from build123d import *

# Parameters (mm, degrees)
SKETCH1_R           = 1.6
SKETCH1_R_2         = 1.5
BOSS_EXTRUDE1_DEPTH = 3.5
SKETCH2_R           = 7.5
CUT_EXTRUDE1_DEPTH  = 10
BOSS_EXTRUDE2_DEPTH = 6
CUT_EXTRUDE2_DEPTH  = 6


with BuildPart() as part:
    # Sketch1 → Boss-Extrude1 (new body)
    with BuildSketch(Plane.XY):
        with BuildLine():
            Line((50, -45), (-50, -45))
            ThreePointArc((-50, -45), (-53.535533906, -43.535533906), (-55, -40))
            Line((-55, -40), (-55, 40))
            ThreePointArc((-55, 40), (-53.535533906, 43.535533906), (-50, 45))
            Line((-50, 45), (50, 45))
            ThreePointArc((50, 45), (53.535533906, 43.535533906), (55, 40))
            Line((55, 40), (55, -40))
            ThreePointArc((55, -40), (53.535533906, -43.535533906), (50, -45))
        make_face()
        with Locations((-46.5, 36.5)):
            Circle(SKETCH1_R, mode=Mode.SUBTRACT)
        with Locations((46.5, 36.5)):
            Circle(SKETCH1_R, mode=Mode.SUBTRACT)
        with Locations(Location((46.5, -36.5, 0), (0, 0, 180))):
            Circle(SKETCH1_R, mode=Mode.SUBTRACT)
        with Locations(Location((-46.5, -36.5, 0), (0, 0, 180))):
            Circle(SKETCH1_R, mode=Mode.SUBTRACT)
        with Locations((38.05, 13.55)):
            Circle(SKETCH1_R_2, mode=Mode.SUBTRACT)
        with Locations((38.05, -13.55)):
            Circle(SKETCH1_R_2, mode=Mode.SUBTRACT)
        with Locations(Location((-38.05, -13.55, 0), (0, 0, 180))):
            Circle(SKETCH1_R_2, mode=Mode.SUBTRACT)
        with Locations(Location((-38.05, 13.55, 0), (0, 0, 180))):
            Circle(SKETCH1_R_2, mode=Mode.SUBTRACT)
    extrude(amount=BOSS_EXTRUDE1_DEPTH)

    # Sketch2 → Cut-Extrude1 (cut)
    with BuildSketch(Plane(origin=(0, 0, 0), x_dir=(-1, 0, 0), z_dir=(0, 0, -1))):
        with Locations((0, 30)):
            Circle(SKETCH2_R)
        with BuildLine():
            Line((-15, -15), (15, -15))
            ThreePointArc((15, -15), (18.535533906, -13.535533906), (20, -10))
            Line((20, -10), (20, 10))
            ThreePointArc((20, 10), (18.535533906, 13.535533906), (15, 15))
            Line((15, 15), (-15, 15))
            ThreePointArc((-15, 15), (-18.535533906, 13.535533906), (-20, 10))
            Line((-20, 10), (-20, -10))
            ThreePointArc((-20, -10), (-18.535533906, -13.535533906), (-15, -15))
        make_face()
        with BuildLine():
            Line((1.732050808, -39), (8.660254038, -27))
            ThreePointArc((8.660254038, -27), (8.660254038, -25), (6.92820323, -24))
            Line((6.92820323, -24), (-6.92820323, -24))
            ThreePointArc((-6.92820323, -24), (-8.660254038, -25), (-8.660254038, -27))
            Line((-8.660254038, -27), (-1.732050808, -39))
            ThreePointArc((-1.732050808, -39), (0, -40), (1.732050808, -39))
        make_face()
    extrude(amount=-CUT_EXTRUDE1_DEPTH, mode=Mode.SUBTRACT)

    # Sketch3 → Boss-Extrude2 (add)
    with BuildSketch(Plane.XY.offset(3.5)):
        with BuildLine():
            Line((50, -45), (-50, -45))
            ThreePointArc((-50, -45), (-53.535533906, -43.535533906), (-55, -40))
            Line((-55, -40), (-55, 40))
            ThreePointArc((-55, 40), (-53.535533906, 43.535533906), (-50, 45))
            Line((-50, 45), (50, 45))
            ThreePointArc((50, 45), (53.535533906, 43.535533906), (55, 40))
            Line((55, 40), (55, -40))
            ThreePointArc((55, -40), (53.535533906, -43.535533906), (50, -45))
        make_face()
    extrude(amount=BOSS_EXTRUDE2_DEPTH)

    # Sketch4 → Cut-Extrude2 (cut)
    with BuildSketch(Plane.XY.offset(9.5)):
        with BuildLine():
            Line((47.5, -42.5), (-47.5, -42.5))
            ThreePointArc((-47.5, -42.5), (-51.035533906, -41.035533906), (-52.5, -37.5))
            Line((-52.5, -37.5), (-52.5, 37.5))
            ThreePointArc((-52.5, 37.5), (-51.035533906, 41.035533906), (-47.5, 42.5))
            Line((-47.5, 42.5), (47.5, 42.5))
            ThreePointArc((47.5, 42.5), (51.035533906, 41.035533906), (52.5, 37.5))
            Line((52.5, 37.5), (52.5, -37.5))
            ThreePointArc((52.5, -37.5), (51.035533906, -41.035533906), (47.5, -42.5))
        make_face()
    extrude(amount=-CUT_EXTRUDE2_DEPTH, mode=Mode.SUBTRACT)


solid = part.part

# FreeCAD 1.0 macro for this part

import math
import FreeCAD as App
import Part
import Sketcher
Q = App.Units.Quantity

doc = App.newDocument("Part")
body = doc.addObject("PartDesign::Body", "Body")

sketch1 = doc.addObject("Sketcher::SketchObject", "Sketch")
body.addObject(sketch1)
sketch1.AttachmentSupport = (doc.XY_Plane, [""])
sketch1.MapMode = "FlatFace"
sketch1.addGeometry(Part.LineSegment(App.Vector(-50, -45, 0), App.Vector(50, -45, 0)), False)
sketch1.addGeometry(Part.ArcOfCircle(Part.Circle(App.Vector(50, -40, 0), App.Vector(0, 0, 1), 5), math.radians(-90), math.radians(0)), False)
sketch1.addGeometry(Part.LineSegment(App.Vector(55, -40, 0), App.Vector(55, 40, 0)), False)
sketch1.addGeometry(Part.ArcOfCircle(Part.Circle(App.Vector(50, 40, 0), App.Vector(0, 0, 1), 5), math.radians(0), math.radians(90)), False)
sketch1.addGeometry(Part.LineSegment(App.Vector(50, 45, 0), App.Vector(-50, 45, 0)), False)
sketch1.addGeometry(Part.ArcOfCircle(Part.Circle(App.Vector(-50, 40, 0), App.Vector(0, 0, 1), 5), math.radians(90), math.radians(180)), False)
sketch1.addGeometry(Part.LineSegment(App.Vector(-55, 40, 0), App.Vector(-55, -40, 0)), False)
sketch1.addGeometry(Part.ArcOfCircle(Part.Circle(App.Vector(-50, -40, 0), App.Vector(0, 0, 1), 5), math.radians(180), math.radians(270)), False)
sketch1.addGeometry(Part.Circle(App.Vector(46.5, -36.5, 0), App.Vector(0, 0, 1), 1.6), False)
sketch1.addGeometry(Part.Circle(App.Vector(38, -13.6, 0), App.Vector(0, 0, 1), 1.5), False)
sketch1.addGeometry(Part.Circle(App.Vector(-46.5, -36.5, 0), App.Vector(0, 0, 1), 1.6), False)
sketch1.addGeometry(Part.Circle(App.Vector(-38, -13.6, 0), App.Vector(0, 0, 1), 1.5), False)
sketch1.addGeometry(Part.Circle(App.Vector(38, 13.6, 0), App.Vector(0, 0, 1), 1.5), False)
sketch1.addGeometry(Part.Circle(App.Vector(46.5, 36.5, 0), App.Vector(0, 0, 1), 1.6), False)
sketch1.addGeometry(Part.Circle(App.Vector(-38, 13.6, 0), App.Vector(0, 0, 1), 1.5), False)
sketch1.addGeometry(Part.Circle(App.Vector(-46.5, 36.5, 0), App.Vector(0, 0, 1), 1.6), False)
sketch1.addConstraint(Sketcher.Constraint("Tangent", 0, 2, 1, 1))
sketch1.addConstraint(Sketcher.Constraint("Tangent", 1, 2, 2, 1))
sketch1.addConstraint(Sketcher.Constraint("Tangent", 2, 2, 3, 1))
sketch1.addConstraint(Sketcher.Constraint("Tangent", 3, 2, 4, 1))
sketch1.addConstraint(Sketcher.Constraint("Tangent", 4, 2, 5, 1))
sketch1.addConstraint(Sketcher.Constraint("Tangent", 5, 2, 6, 1))
sketch1.addConstraint(Sketcher.Constraint("Tangent", 6, 2, 7, 1))
sketch1.addConstraint(Sketcher.Constraint("Tangent", 7, 2, 0, 1))
sketch1.addConstraint(Sketcher.Constraint("Horizontal", 0))
sketch1.addConstraint(Sketcher.Constraint("Vertical", 2))
sketch1.addConstraint(Sketcher.Constraint("Horizontal", 4))
sketch1.addConstraint(Sketcher.Constraint("Vertical", 6))
sketch1.addConstraint(Sketcher.Constraint("Equal", 1, 3))
sketch1.addConstraint(Sketcher.Constraint("Equal", 3, 5))
sketch1.addConstraint(Sketcher.Constraint("Equal", 5, 7))
sketch1.addConstraint(Sketcher.Constraint("Equal", 8, 10))
sketch1.addConstraint(Sketcher.Constraint("Equal", 9, 11))
sketch1.addConstraint(Sketcher.Constraint("Equal", 11, 12))
sketch1.addConstraint(Sketcher.Constraint("Equal", 10, 13))
sketch1.addConstraint(Sketcher.Constraint("Equal", 12, 14))
sketch1.addConstraint(Sketcher.Constraint("Equal", 13, 15))
sketch1.addConstraint(Sketcher.Constraint("Symmetric", 1, 3, 5, 3, -1, 1))
sketch1.addConstraint(Sketcher.Constraint("Symmetric", 11, 3, 12, 3, -1, 1))
sketch1.addConstraint(Sketcher.Constraint("Symmetric", 10, 3, 13, 3, -1, 1))
sketch1.addConstraint(Sketcher.Constraint("Symmetric", 9, 3, 14, 3, -1, 1))
sketch1.addConstraint(Sketcher.Constraint("Symmetric", 8, 3, 15, 3, -1, 1))
sketch1.addConstraint(Sketcher.Constraint("Symmetric", 8, 3, 10, 3, -2))
sketch1.addConstraint(Sketcher.Constraint("Symmetric", 9, 3, 11, 3, -2))
sketch1.addConstraint(Sketcher.Constraint("Diameter", 9, 3.0))
sketch1.addConstraint(Sketcher.Constraint("Radius", 1, 5.0))
sketch1.addConstraint(Sketcher.Constraint("Diameter", 8, 3.2))
sketch1.addConstraint(Sketcher.Constraint("DistanceX", 0, 1, 0, 2, 100.0))
sketch1.addConstraint(Sketcher.Constraint("DistanceY", 2, 1, 2, 2, 80.0))
sketch1.addConstraint(Sketcher.Constraint("DistanceX", 10, 3, 8, 3, 93.0))
sketch1.addConstraint(Sketcher.Constraint("DistanceY", 8, 3, 13, 3, 73.0))
sketch1.addConstraint(Sketcher.Constraint("DistanceX", 11, 3, 9, 3, 76.1))
sketch1.addConstraint(Sketcher.Constraint("DistanceY", 9, 3, 12, 3, 27.1))
pad1 = doc.addObject("PartDesign::Pad", "Pad")
body.addObject(pad1)
pad1.Profile = sketch1
pad1.Length = 3.5

sketch2 = doc.addObject("Sketcher::SketchObject", "Sketch001")
body.addObject(sketch2)
sketch2.AttachmentSupport = (doc.XY_Plane, [""])
sketch2.MapMode = "FlatFace"
sketch2.addGeometry(Part.Circle(App.Vector(0, 30, 0), App.Vector(0, 0, 1), 7.5), False)
sketch2.addGeometry(Part.LineSegment(App.Vector(15, -15, 0), App.Vector(-15, -15, 0)), False)
sketch2.addGeometry(Part.ArcOfCircle(Part.Circle(App.Vector(-15, -10, 0), App.Vector(0, 0, 1), 5), math.radians(180), math.radians(270)), False)
sketch2.addGeometry(Part.LineSegment(App.Vector(-20, -10, 0), App.Vector(-20, 10, 0)), False)
sketch2.addGeometry(Part.ArcOfCircle(Part.Circle(App.Vector(-15, 10, 0), App.Vector(0, 0, 1), 5), math.radians(90), math.radians(180)), False)
sketch2.addGeometry(Part.LineSegment(App.Vector(-15, 15, 0), App.Vector(15, 15, 0)), False)
sketch2.addGeometry(Part.ArcOfCircle(Part.Circle(App.Vector(15, 10, 0), App.Vector(0, 0, 1), 5), math.radians(0), math.radians(90)), False)
sketch2.addGeometry(Part.LineSegment(App.Vector(20, 10, 0), App.Vector(20, -10, 0)), False)
sketch2.addGeometry(Part.ArcOfCircle(Part.Circle(App.Vector(15, -10, 0), App.Vector(0, 0, 1), 5), math.radians(-90), math.radians(0)), False)
sketch2.addGeometry(Part.LineSegment(App.Vector(-1.7, -39, 0), App.Vector(-8.7, -27, 0)), False)
sketch2.addGeometry(Part.ArcOfCircle(Part.Circle(App.Vector(-6.9, -26, 0), App.Vector(0, 0, 1), 2), math.radians(90), math.radians(210)), False)
sketch2.addGeometry(Part.LineSegment(App.Vector(-6.9, -24, 0), App.Vector(6.9, -24, 0)), False)
sketch2.addGeometry(Part.ArcOfCircle(Part.Circle(App.Vector(6.9, -26, 0), App.Vector(0, 0, 1), 2), math.radians(-30), math.radians(90)), False)
sketch2.addGeometry(Part.LineSegment(App.Vector(8.7, -27, 0), App.Vector(1.7, -39, 0)), False)
sketch2.addGeometry(Part.ArcOfCircle(Part.Circle(App.Vector(0, -38, 0), App.Vector(0, 0, 1), 2), math.radians(-150), math.radians(-30)), False)
sketch2.addConstraint(Sketcher.Constraint("Tangent", 1, 2, 2, 2))
sketch2.addConstraint(Sketcher.Constraint("Tangent", 2, 1, 3, 1))
sketch2.addConstraint(Sketcher.Constraint("Tangent", 3, 2, 4, 2))
sketch2.addConstraint(Sketcher.Constraint("Tangent", 4, 1, 5, 1))
sketch2.addConstraint(Sketcher.Constraint("Tangent", 5, 2, 6, 2))
sketch2.addConstraint(Sketcher.Constraint("Tangent", 6, 1, 7, 1))
sketch2.addConstraint(Sketcher.Constraint("Tangent", 7, 2, 8, 2))
sketch2.addConstraint(Sketcher.Constraint("Tangent", 8, 1, 1, 1))
sketch2.addConstraint(Sketcher.Constraint("Tangent", 9, 2, 10, 2))
sketch2.addConstraint(Sketcher.Constraint("Tangent", 10, 1, 11, 1))
sketch2.addConstraint(Sketcher.Constraint("Tangent", 11, 2, 12, 2))
sketch2.addConstraint(Sketcher.Constraint("Tangent", 12, 1, 13, 1))
sketch2.addConstraint(Sketcher.Constraint("Tangent", 13, 2, 14, 2))
sketch2.addConstraint(Sketcher.Constraint("Tangent", 14, 1, 9, 1))
sketch2.addConstraint(Sketcher.Constraint("Horizontal", 1))
sketch2.addConstraint(Sketcher.Constraint("Vertical", 3))
sketch2.addConstraint(Sketcher.Constraint("Horizontal", 5))
sketch2.addConstraint(Sketcher.Constraint("Vertical", 7))
sketch2.addConstraint(Sketcher.Constraint("Horizontal", 11))
sketch2.addConstraint(Sketcher.Constraint("Equal", 2, 4))
sketch2.addConstraint(Sketcher.Constraint("Equal", 4, 6))
sketch2.addConstraint(Sketcher.Constraint("Equal", 6, 8))
sketch2.addConstraint(Sketcher.Constraint("Equal", 10, 12))
sketch2.addConstraint(Sketcher.Constraint("Equal", 12, 14))
sketch2.addConstraint(Sketcher.Constraint("Symmetric", 2, 3, 6, 3, -1, 1))
sketch2.addConstraint(Sketcher.Constraint("Symmetric", 9, 2, 12, 1, -2))
sketch2.addConstraint(Sketcher.Constraint("PointOnObject", 0, 3, -2))
sketch2.addConstraint(Sketcher.Constraint("Diameter", 0, 15.0))
sketch2.addConstraint(Sketcher.Constraint("Radius", 2, 5.0))
sketch2.addConstraint(Sketcher.Constraint("Radius", 10, 2.0))
sketch2.addConstraint(Sketcher.Constraint("DistanceX", 1, 2, 1, 1, 30.0))
sketch2.addConstraint(Sketcher.Constraint("DistanceY", 3, 1, 3, 2, 20.0))
sketch2.addConstraint(Sketcher.Constraint("Angle", 9, Q("120 deg")))
sketch2.addConstraint(Sketcher.Constraint("DistanceY", -1, 1, 0, 3, 30.0))
sketch2.addConstraint(Sketcher.Constraint("DistanceY", 10, 3, -1, 1, 26.0))
sketch2.addConstraint(Sketcher.Constraint("DistanceY", 14, 3, -1, 1, 38.0))
pocket1 = doc.addObject("PartDesign::Pocket", "Pocket")
body.addObject(pocket1)
pocket1.Profile = sketch2
pocket1.Length = 10
pocket1.Reversed = True

sketch3 = doc.addObject("Sketcher::SketchObject", "Sketch002")
body.addObject(sketch3)
sketch3.AttachmentSupport = (doc.XY_Plane, [""])
sketch3.MapMode = "FlatFace"
sketch3.AttachmentOffset = App.Placement(App.Vector(0, 0, 3.5), App.Rotation())
sketch3.addGeometry(Part.LineSegment(App.Vector(-50, -45, 0), App.Vector(50, -45, 0)), False)
sketch3.addGeometry(Part.ArcOfCircle(Part.Circle(App.Vector(50, -40, 0), App.Vector(0, 0, 1), 5), math.radians(-90), math.radians(0)), False)
sketch3.addGeometry(Part.LineSegment(App.Vector(55, -40, 0), App.Vector(55, 40, 0)), False)
sketch3.addGeometry(Part.ArcOfCircle(Part.Circle(App.Vector(50, 40, 0), App.Vector(0, 0, 1), 5), math.radians(0), math.radians(90)), False)
sketch3.addGeometry(Part.LineSegment(App.Vector(50, 45, 0), App.Vector(-50, 45, 0)), False)
sketch3.addGeometry(Part.ArcOfCircle(Part.Circle(App.Vector(-50, 40, 0), App.Vector(0, 0, 1), 5), math.radians(90), math.radians(180)), False)
sketch3.addGeometry(Part.LineSegment(App.Vector(-55, 40, 0), App.Vector(-55, -40, 0)), False)
sketch3.addGeometry(Part.ArcOfCircle(Part.Circle(App.Vector(-50, -40, 0), App.Vector(0, 0, 1), 5), math.radians(180), math.radians(270)), False)
sketch3.addConstraint(Sketcher.Constraint("Tangent", 0, 2, 1, 1))
sketch3.addConstraint(Sketcher.Constraint("Tangent", 1, 2, 2, 1))
sketch3.addConstraint(Sketcher.Constraint("Tangent", 2, 2, 3, 1))
sketch3.addConstraint(Sketcher.Constraint("Tangent", 3, 2, 4, 1))
sketch3.addConstraint(Sketcher.Constraint("Tangent", 4, 2, 5, 1))
sketch3.addConstraint(Sketcher.Constraint("Tangent", 5, 2, 6, 1))
sketch3.addConstraint(Sketcher.Constraint("Tangent", 6, 2, 7, 1))
sketch3.addConstraint(Sketcher.Constraint("Tangent", 7, 2, 0, 1))
sketch3.addConstraint(Sketcher.Constraint("Horizontal", 0))
sketch3.addConstraint(Sketcher.Constraint("Vertical", 2))
sketch3.addConstraint(Sketcher.Constraint("Horizontal", 4))
sketch3.addConstraint(Sketcher.Constraint("Vertical", 6))
sketch3.addConstraint(Sketcher.Constraint("Equal", 1, 3))
sketch3.addConstraint(Sketcher.Constraint("Equal", 3, 5))
sketch3.addConstraint(Sketcher.Constraint("Equal", 5, 7))
sketch3.addConstraint(Sketcher.Constraint("Symmetric", 1, 3, 5, 3, -1, 1))
sketch3.addConstraint(Sketcher.Constraint("Radius", 1, 5.0))
sketch3.addConstraint(Sketcher.Constraint("DistanceX", 0, 1, 0, 2, 100.0))
sketch3.addConstraint(Sketcher.Constraint("DistanceY", 2, 1, 2, 2, 80.0))
pad2 = doc.addObject("PartDesign::Pad", "Pad001")
body.addObject(pad2)
pad2.Profile = sketch3
pad2.Length = 6

sketch4 = doc.addObject("Sketcher::SketchObject", "Sketch003")
body.addObject(sketch4)
sketch4.AttachmentSupport = (doc.XY_Plane, [""])
sketch4.MapMode = "FlatFace"
sketch4.AttachmentOffset = App.Placement(App.Vector(0, 0, 9.5), App.Rotation())
sketch4.addGeometry(Part.LineSegment(App.Vector(-48, -42, 0), App.Vector(48, -42, 0)), False)
sketch4.addGeometry(Part.ArcOfCircle(Part.Circle(App.Vector(48, -38, 0), App.Vector(0, 0, 1), 5), math.radians(-90), math.radians(0)), False)
sketch4.addGeometry(Part.LineSegment(App.Vector(52, -38, 0), App.Vector(52, 38, 0)), False)
sketch4.addGeometry(Part.ArcOfCircle(Part.Circle(App.Vector(48, 38, 0), App.Vector(0, 0, 1), 5), math.radians(0), math.radians(90)), False)
sketch4.addGeometry(Part.LineSegment(App.Vector(48, 42, 0), App.Vector(-48, 42, 0)), False)
sketch4.addGeometry(Part.ArcOfCircle(Part.Circle(App.Vector(-48, 38, 0), App.Vector(0, 0, 1), 5), math.radians(90), math.radians(180)), False)
sketch4.addGeometry(Part.LineSegment(App.Vector(-52, 38, 0), App.Vector(-52, -38, 0)), False)
sketch4.addGeometry(Part.ArcOfCircle(Part.Circle(App.Vector(-48, -38, 0), App.Vector(0, 0, 1), 5), math.radians(180), math.radians(270)), False)
sketch4.addConstraint(Sketcher.Constraint("Tangent", 0, 2, 1, 1))
sketch4.addConstraint(Sketcher.Constraint("Tangent", 1, 2, 2, 1))
sketch4.addConstraint(Sketcher.Constraint("Tangent", 2, 2, 3, 1))
sketch4.addConstraint(Sketcher.Constraint("Tangent", 3, 2, 4, 1))
sketch4.addConstraint(Sketcher.Constraint("Tangent", 4, 2, 5, 1))
sketch4.addConstraint(Sketcher.Constraint("Tangent", 5, 2, 6, 1))
sketch4.addConstraint(Sketcher.Constraint("Tangent", 6, 2, 7, 1))
sketch4.addConstraint(Sketcher.Constraint("Tangent", 7, 2, 0, 1))
sketch4.addConstraint(Sketcher.Constraint("Horizontal", 0))
sketch4.addConstraint(Sketcher.Constraint("Vertical", 2))
sketch4.addConstraint(Sketcher.Constraint("Horizontal", 4))
sketch4.addConstraint(Sketcher.Constraint("Vertical", 6))
sketch4.addConstraint(Sketcher.Constraint("Equal", 1, 3))
sketch4.addConstraint(Sketcher.Constraint("Equal", 3, 5))
sketch4.addConstraint(Sketcher.Constraint("Equal", 5, 7))
sketch4.addConstraint(Sketcher.Constraint("Symmetric", 1, 3, 5, 3, -1, 1))
sketch4.addConstraint(Sketcher.Constraint("Radius", 1, 5.0))
sketch4.addConstraint(Sketcher.Constraint("DistanceX", 0, 1, 0, 2, 95.0))
sketch4.addConstraint(Sketcher.Constraint("DistanceY", 2, 1, 2, 2, 75.0))
pocket2 = doc.addObject("PartDesign::Pocket", "Pocket001")
body.addObject(pocket2)
pocket2.Profile = sketch4
pocket2.Length = 6

doc.recompute()
